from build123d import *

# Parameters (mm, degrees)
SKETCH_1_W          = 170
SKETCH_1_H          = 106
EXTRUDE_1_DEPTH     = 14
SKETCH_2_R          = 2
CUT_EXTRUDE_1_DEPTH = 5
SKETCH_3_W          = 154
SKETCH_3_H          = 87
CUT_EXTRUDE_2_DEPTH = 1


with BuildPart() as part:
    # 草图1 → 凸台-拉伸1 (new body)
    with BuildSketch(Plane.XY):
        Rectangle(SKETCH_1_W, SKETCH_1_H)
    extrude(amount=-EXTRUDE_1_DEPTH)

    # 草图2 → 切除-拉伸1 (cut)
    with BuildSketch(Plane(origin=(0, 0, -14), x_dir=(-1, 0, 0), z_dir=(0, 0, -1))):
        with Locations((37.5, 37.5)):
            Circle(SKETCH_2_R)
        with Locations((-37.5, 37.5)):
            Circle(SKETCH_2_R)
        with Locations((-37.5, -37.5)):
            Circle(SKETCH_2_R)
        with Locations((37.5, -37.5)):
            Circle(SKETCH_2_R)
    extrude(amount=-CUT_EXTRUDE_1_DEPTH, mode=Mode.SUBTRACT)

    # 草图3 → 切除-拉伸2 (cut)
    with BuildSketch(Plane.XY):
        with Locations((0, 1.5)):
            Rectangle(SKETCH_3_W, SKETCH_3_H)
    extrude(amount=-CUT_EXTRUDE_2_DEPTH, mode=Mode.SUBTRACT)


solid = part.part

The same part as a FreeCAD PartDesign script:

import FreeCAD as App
import Part
import Sketcher
from FreeCAD import Vector
Q = App.Units.Quantity


def add_polygon(sketch, points):
    """Adds a closed chain of lines whose ends are joined by coincident constraints."""
    first, n = sketch.GeometryCount, len(points)
    for a, b in zip(points, points[1:] + points[:1]):
        sketch.addGeometry(Part.LineSegment(App.Vector(*a, 0), App.Vector(*b, 0)), False)
    for i in range(n):
        sketch.addConstraint(Sketcher.Constraint("Coincident", first + i, 2, first + (i + 1) % n, 1))

doc = App.newDocument("Part")
body = doc.addObject("PartDesign::Body", "Body")

sketch1 = body.newObject("Sketcher::SketchObject", "Sketch")
sketch1.AttachmentSupport = (doc.getObject("XY_Plane"), [""])
sketch1.MapMode = "FlatFace"
add_polygon(sketch1, [(-85, 53), (-85, -53), (85, -53), (85, 53)])
sketch1.addConstraint(Sketcher.Constraint("Vertical", 0))
sketch1.addConstraint(Sketcher.Constraint("Horizontal", 1))
sketch1.addConstraint(Sketcher.Constraint("Vertical", 2))
sketch1.addConstraint(Sketcher.Constraint("Horizontal", 3))
sketch1.addConstraint(Sketcher.Constraint("Symmetric", 0, 2, 2, 2, -1, 1))
sketch1.addConstraint(Sketcher.Constraint("DistanceX", 1, 1, 1, 2, Q("170 mm")))
sketch1.addConstraint(Sketcher.Constraint("DistanceY", 0, 2, 0, 1, Q("106 mm")))
pad1 = body.newObject("PartDesign::Pad", "Pad")
pad1.Profile = sketch1
pad1.Length = 14
pad1.Reversed = True

sketch2 = body.newObject("Sketcher::SketchObject", "Sketch001")
sketch2.AttachmentSupport = (doc.getObject("XY_Plane"), [""])
sketch2.MapMode = "FlatFace"
sketch2.AttachmentOffset = App.Placement(Vector(0, 0, -14), App.Rotation())
sketch2.addGeometry(Part.Circle(Vector(-37.5, 37.5, 0), Vector(0, 0, 1), 2), False)
sketch2.addGeometry(Part.Circle(Vector(37.5, 37.5, 0), Vector(0, 0, 1), 2), False)
sketch2.addGeometry(Part.Circle(Vector(37.5, -37.5, 0), Vector(0, 0, 1), 2), False)
sketch2.addGeometry(Part.Circle(Vector(-37.5, -37.5, 0), Vector(0, 0, 1), 2), False)
sketch2.addConstraint(Sketcher.Constraint("Equal", 0, 1))
sketch2.addConstraint(Sketcher.Constraint("Equal", 1, 2))
sketch2.addConstraint(Sketcher.Constraint("Equal", 2, 3))
sketch2.addConstraint(Sketcher.Constraint("Symmetric", 0, 3, 2, 3, -1, 1))
sketch2.addConstraint(Sketcher.Constraint("Symmetric", 1, 3, 3, 3, -1, 1))
sketch2.addConstraint(Sketcher.Constraint("Symmetric", 0, 3, 1, 3, -2))
sketch2.addConstraint(Sketcher.Constraint("Diameter", 0, Q("4 mm")))
sketch2.addConstraint(Sketcher.Constraint("DistanceX", 0, 3, 1, 3, Q("75 mm")))
sketch2.addConstraint(Sketcher.Constraint("DistanceY", 2, 3, 1, 3, Q("75 mm")))
pocket1 = body.newObject("PartDesign::Pocket", "Pocket")
pocket1.Profile = sketch2
pocket1.Length = 5
pocket1.Reversed = True

sketch3 = body.newObject("Sketcher::SketchObject", "Sketch002")
sketch3.AttachmentSupport = (doc.getObject("XY_Plane"), [""])
sketch3.MapMode = "FlatFace"
add_polygon(sketch3, [(-77, 45), (-77, -42), (77, -42), (77, 45)])
sketch3.addConstraint(Sketcher.Constraint("Vertical", 0))
sketch3.addConstraint(Sketcher.Constraint("Horizontal", 1))
sketch3.addConstraint(Sketcher.Constraint("Vertical", 2))
sketch3.addConstraint(Sketcher.Constraint("Horizontal", 3))
sketch3.addConstraint(Sketcher.Constraint("DistanceX", 1, 1, 1, 2, Q("154 mm")))
sketch3.addConstraint(Sketcher.Constraint("DistanceY", 0, 2, 0, 1, Q("87 mm")))
sketch3.addConstraint(Sketcher.Constraint("DistanceX", 0, 2, -1, 1, Q("77 mm")))
sketch3.addConstraint(Sketcher.Constraint("DistanceY", 0, 2, -1, 1, Q("42 mm")))
pocket2 = body.newObject("PartDesign::Pocket", "Pocket001")
pocket2.Profile = sketch3
pocket2.Length = 1

doc.recompute()
